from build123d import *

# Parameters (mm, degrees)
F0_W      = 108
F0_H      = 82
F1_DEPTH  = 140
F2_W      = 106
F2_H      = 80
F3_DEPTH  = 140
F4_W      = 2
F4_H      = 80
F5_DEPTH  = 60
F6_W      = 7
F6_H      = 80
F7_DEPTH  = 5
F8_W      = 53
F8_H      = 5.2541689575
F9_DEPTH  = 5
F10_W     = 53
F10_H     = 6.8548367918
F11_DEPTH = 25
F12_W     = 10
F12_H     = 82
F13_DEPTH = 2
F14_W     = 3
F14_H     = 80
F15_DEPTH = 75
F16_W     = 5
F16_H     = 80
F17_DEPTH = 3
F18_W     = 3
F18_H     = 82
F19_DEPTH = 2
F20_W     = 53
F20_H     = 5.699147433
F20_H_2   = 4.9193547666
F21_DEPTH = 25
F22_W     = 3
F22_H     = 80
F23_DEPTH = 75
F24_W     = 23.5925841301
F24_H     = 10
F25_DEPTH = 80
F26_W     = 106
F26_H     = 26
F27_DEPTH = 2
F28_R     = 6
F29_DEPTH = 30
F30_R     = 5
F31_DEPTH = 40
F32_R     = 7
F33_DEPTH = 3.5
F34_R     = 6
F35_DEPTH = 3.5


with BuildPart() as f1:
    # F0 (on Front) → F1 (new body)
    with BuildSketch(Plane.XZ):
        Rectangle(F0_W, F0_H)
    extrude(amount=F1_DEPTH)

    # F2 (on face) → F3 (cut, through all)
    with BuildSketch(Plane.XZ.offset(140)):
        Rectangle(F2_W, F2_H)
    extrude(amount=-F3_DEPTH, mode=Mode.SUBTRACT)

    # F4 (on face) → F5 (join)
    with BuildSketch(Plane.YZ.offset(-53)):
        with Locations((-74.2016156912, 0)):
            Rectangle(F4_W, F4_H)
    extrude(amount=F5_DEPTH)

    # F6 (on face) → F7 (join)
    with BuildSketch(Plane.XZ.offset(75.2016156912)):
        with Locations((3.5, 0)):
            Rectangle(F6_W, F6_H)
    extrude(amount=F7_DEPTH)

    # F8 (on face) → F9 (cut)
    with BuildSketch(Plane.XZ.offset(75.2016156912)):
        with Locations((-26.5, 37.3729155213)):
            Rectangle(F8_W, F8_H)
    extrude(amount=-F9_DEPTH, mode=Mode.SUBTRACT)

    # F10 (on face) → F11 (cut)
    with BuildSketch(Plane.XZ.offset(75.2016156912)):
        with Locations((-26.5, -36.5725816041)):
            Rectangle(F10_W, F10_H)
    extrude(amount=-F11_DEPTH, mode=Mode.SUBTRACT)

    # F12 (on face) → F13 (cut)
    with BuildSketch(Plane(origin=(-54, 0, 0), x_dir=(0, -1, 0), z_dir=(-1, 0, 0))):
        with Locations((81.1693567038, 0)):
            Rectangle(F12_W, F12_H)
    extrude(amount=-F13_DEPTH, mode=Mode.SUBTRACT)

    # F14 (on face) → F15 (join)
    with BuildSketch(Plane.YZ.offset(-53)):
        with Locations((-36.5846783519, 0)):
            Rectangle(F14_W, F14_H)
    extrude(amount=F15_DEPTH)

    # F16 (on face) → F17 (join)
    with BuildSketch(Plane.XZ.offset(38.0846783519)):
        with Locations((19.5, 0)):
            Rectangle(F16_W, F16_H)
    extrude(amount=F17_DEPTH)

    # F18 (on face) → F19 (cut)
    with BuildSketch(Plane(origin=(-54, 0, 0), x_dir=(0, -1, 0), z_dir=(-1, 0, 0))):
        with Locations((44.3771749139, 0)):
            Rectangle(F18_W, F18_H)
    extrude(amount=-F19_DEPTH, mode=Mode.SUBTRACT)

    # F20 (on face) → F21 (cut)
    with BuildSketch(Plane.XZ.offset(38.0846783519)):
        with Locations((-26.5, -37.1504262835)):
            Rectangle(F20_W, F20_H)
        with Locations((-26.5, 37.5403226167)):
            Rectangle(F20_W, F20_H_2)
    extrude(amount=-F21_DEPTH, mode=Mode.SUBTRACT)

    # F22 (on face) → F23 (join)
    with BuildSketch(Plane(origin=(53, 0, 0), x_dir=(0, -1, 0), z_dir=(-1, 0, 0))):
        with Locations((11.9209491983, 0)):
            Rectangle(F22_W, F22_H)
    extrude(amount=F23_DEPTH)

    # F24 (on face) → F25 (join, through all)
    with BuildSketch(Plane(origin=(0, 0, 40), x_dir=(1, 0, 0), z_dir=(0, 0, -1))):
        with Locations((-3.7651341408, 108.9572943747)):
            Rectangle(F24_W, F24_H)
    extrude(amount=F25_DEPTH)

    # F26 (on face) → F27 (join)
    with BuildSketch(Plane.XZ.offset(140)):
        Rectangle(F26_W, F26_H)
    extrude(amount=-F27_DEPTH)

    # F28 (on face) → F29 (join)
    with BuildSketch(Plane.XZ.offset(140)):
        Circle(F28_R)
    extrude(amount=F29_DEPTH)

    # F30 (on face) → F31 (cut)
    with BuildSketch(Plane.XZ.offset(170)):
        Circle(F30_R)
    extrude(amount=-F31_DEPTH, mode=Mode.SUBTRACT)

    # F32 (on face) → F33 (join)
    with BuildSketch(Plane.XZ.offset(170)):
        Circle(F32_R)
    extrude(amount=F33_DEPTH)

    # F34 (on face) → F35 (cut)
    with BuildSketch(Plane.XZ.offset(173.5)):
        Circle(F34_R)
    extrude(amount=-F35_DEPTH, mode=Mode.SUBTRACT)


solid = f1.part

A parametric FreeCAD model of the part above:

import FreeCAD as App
import Part
import Sketcher
Q = App.Units.Quantity


def add_polygon(sketch, points):
    """Adds a closed chain of lines whose ends are joined by coincident constraints."""
    first, n = sketch.GeometryCount, len(points)
    for a, b in zip(points, points[1:] + points[:1]):
        sketch.addGeometry(Part.LineSegment(App.Vector(*a, 0), App.Vector(*b, 0)), False)
    for i in range(n):
        sketch.addConstraint(Sketcher.Constraint("Coincident", first + i, 2, first + (i + 1) % n, 1))

doc = App.newDocument("Part")
body = doc.addObject("PartDesign::Body", "Body")
body.AllowCompound = True

# Sketch on XZ plane
sketch1 = body.newObject("Sketcher::SketchObject", "Sketch")
sketch1.AttachmentSupport = (doc.getObject("XZ_Plane"), [""])
sketch1.MapMode = "FlatFace"
add_polygon(sketch1, [(-54, 41), (-54, -41), (54, -41), (54, 41)])  # lines 0-3
sketch1.addConstraint([
    Sketcher.Constraint("Vertical", 0),
    Sketcher.Constraint("Horizontal", 1),
    Sketcher.Constraint("Vertical", 2),
    Sketcher.Constraint("Horizontal", 3),
    Sketcher.Constraint("Symmetric", 0, 2, 2, 2, -1, 1),
    Sketcher.Constraint("DistanceX", 1, 1, 1, 2, Q("108 mm")),
    Sketcher.Constraint("DistanceY", 0, 2, 0, 1, Q("82 mm")),
])
pad1 = body.newObject("PartDesign::Pad", "Pad")
pad1.Profile = sketch1
pad1.Length = 140

# Sketch on XZ plane
sketch2 = body.newObject("Sketcher::SketchObject", "Sketch001")
sketch2.AttachmentSupport = (doc.getObject("XZ_Plane"), [""])
sketch2.MapMode = "FlatFace"
sketch2.AttachmentOffset = App.Placement(App.Vector(0, 0, 140), App.Rotation())
add_polygon(sketch2, [(-53, 40), (-53, -40), (53, -40), (53, 40)])  # lines 0-3
sketch2.addConstraint([
    Sketcher.Constraint("Vertical", 0),
    Sketcher.Constraint("Horizontal", 1),
    Sketcher.Constraint("Vertical", 2),
    Sketcher.Constraint("Horizontal", 3),
    Sketcher.Constraint("Symmetric", 0, 2, 2, 2, -1, 1),
    Sketcher.Constraint("DistanceX", 1, 1, 1, 2, Q("106 mm")),
    Sketcher.Constraint("DistanceY", 0, 2, 0, 1, Q("80 mm")),
])
pocket1 = body.newObject("PartDesign::Pocket", "Pocket")
pocket1.Profile = sketch2
pocket1.Type = "ThroughAll"

# Sketch on YZ plane
sketch3 = body.newObject("Sketcher::SketchObject", "Sketch002")
sketch3.AttachmentSupport = (doc.getObject("YZ_Plane"), [""])
sketch3.MapMode = "FlatFace"
sketch3.AttachmentOffset = App.Placement(App.Vector(0, 0, -53), App.Rotation())
add_polygon(sketch3, [(-75.2, 40), (-75.2, -40), (-73.2, -40), (-73.2, 40)])  # lines 0-3
sketch3.addConstraint([
    Sketcher.Constraint("Vertical", 0),
    Sketcher.Constraint("Horizontal", 1),
    Sketcher.Constraint("Vertical", 2),
    Sketcher.Constraint("Horizontal", 3),
    Sketcher.Constraint("DistanceX", 1, 1, 1, 2, Q("2 mm")),
    Sketcher.Constraint("DistanceY", 0, 2, 0, 1, Q("80 mm")),
    Sketcher.Constraint("DistanceY", 0, 2, -1, 1, Q("40 mm")),
    Sketcher.Constraint("DistanceX", 0, 2, -1, 1, Q("75.201616 mm")),
])
pad2 = body.newObject("PartDesign::Pad", "Pad001")
pad2.Profile = sketch3
pad2.Length = 60

# Sketch on XZ plane
sketch4 = body.newObject("Sketcher::SketchObject", "Sketch003")
sketch4.AttachmentSupport = (doc.getObject("XZ_Plane"), [""])
sketch4.MapMode = "FlatFace"
sketch4.AttachmentOffset = App.Placement(App.Vector(0, 0, 75.201616), App.Rotation())
add_polygon(sketch4, [(0, 40), (0, -40), (7, -40), (7, 40)])  # lines 0-3
sketch4.addConstraint([
    Sketcher.Constraint("Vertical", 0),
    Sketcher.Constraint("Horizontal", 1),
    Sketcher.Constraint("Vertical", 2),
    Sketcher.Constraint("Horizontal", 3),
    Sketcher.Constraint("Symmetric", 0, 2, 3, 2, -1, 1),
    Sketcher.Constraint("DistanceX", 1, 1, 1, 2, Q("7 mm")),
    Sketcher.Constraint("DistanceY", 0, 2, 0, 1, Q("80 mm")),
])
pad3 = body.newObject("PartDesign::Pad", "Pad002")
pad3.Profile = sketch4
pad3.Length = 5

# Sketch on XZ plane
sketch5 = body.newObject("Sketcher::SketchObject", "Sketch004")
sketch5.AttachmentSupport = (doc.getObject("XZ_Plane"), [""])
sketch5.MapMode = "FlatFace"
sketch5.AttachmentOffset = App.Placement(App.Vector(0, 0, 75.201616), App.Rotation())
add_polygon(sketch5, [(-53, 40), (-53, 35), (0, 35), (0, 40)])  # lines 0-3
sketch5.addConstraint([
    Sketcher.Constraint("Vertical", 0),
    Sketcher.Constraint("Horizontal", 1),
    Sketcher.Constraint("Vertical", 2),
    Sketcher.Constraint("Horizontal", 3),
    Sketcher.Constraint("PointOnObject", 1, 2, -2),
    Sketcher.Constraint("DistanceX", 1, 1, 1, 2, Q("53 mm")),
    Sketcher.Constraint("DistanceY", -1, 1, 2, 2, Q("40 mm")),
    Sketcher.Constraint("DistanceY", 0, 2, 0, 1, Q("5.254169 mm")),
])
pocket2 = body.newObject("PartDesign::Pocket", "Pocket001")
pocket2.Profile = sketch5
pocket2.Length = 5

# Sketch on XZ plane
sketch6 = body.newObject("Sketcher::SketchObject", "Sketch005")
sketch6.AttachmentSupport = (doc.getObject("XZ_Plane"), [""])
sketch6.MapMode = "FlatFace"
sketch6.AttachmentOffset = App.Placement(App.Vector(0, 0, 75.201616), App.Rotation())
add_polygon(sketch6, [(-53, -33), (-53, -40), (0, -40), (0, -33)])  # lines 0-3
sketch6.addConstraint([
    Sketcher.Constraint("Vertical", 0),
    Sketcher.Constraint("Horizontal", 1),
    Sketcher.Constraint("Vertical", 2),
    Sketcher.Constraint("Horizontal", 3),
    Sketcher.Constraint("PointOnObject", 1, 2, -2),
    Sketcher.Constraint("DistanceX", 1, 1, 1, 2, Q("53 mm")),
    Sketcher.Constraint("DistanceY", 0, 2, -1, 1, Q("40 mm")),
    Sketcher.Constraint("DistanceY", 0, 2, 0, 1, Q("6.854837 mm")),
])
pocket3 = body.newObject("PartDesign::Pocket", "Pocket002")
pocket3.Profile = sketch6
pocket3.Length = 25

# Sketch on YZ plane
sketch7 = body.newObject("Sketcher::SketchObject", "Sketch006")
sketch7.AttachmentSupport = (doc.getObject("YZ_Plane"), [""])
sketch7.MapMode = "FlatFace"
sketch7.AttachmentOffset = App.Placement(App.Vector(0, 0, -54), App.Rotation())
add_polygon(sketch7, [(-76, 41), (-76, -41), (-86, -41), (-86, 41)])  # lines 0-3
sketch7.addConstraint([
    Sketcher.Constraint("Vertical", 0),
    Sketcher.Constraint("Horizontal", 1),
    Sketcher.Constraint("Vertical", 2),
    Sketcher.Constraint("Horizontal", 3),
    Sketcher.Constraint("DistanceX", 1, 2, 1, 1, Q("10 mm")),
    Sketcher.Constraint("DistanceY", 0, 2, 0, 1, Q("82 mm")),
    Sketcher.Constraint("DistanceY", 0, 2, -1, 1, Q("41 mm")),
    Sketcher.Constraint("DistanceX", 0, 2, -1, 1, Q("76.169357 mm")),
])
pocket4 = body.newObject("PartDesign::Pocket", "Pocket003")
pocket4.Profile = sketch7
pocket4.Length = 2
pocket4.Reversed = True

# Sketch on YZ plane
sketch8 = body.newObject("Sketcher::SketchObject", "Sketch007")
sketch8.AttachmentSupport = (doc.getObject("YZ_Plane"), [""])
sketch8.MapMode = "FlatFace"
sketch8.AttachmentOffset = App.Placement(App.Vector(0, 0, -53), App.Rotation())
add_polygon(sketch8, [(-38.1, 40), (-38.1, -40), (-35.1, -40), (-35.1, 40)])  # lines 0-3
sketch8.addConstraint([
    Sketcher.Constraint("Vertical", 0),
    Sketcher.Constraint("Horizontal", 1),
    Sketcher.Constraint("Vertical", 2),
    Sketcher.Constraint("Horizontal", 3),
    Sketcher.Constraint("DistanceX", 1, 1, 1, 2, Q("3 mm")),
    Sketcher.Constraint("DistanceY", 0, 2, 0, 1, Q("80 mm")),
    Sketcher.Constraint("DistanceY", 0, 2, -1, 1, Q("40 mm")),
    Sketcher.Constraint("DistanceX", 0, 2, -1, 1, Q("38.084678 mm")),
])
pad4 = body.newObject("PartDesign::Pad", "Pad003")
pad4.Profile = sketch8
pad4.Length = 75

# Sketch on XZ plane
sketch9 = body.newObject("Sketcher::SketchObject", "Sketch008")
sketch9.AttachmentSupport = (doc.getObject("XZ_Plane"), [""])
sketch9.MapMode = "FlatFace"
sketch9.AttachmentOffset = App.Placement(App.Vector(0, 0, 38.084678), App.Rotation())
add_polygon(sketch9, [(17, 40), (17, -40), (22, -40), (22, 40)])  # lines 0-3
sketch9.addConstraint([
    Sketcher.Constraint("Vertical", 0),
    Sketcher.Constraint("Horizontal", 1),
    Sketcher.Constraint("Vertical", 2),
    Sketcher.Constraint("Horizontal", 3),
    Sketcher.Constraint("DistanceX", 1, 1, 1, 2, Q("5 mm")),
    Sketcher.Constraint("DistanceY", 0, 2, 0, 1, Q("80 mm")),
    Sketcher.Constraint("DistanceX", -1, 1, 0, 2, Q("17 mm")),
    Sketcher.Constraint("DistanceY", 0, 2, -1, 1, Q("40 mm")),
])
pad5 = body.newObject("PartDesign::Pad", "Pad004")
pad5.Profile = sketch9
pad5.Length = 3

# Sketch on YZ plane
sketch10 = body.newObject("Sketcher::SketchObject", "Sketch009")
sketch10.AttachmentSupport = (doc.getObject("YZ_Plane"), [""])
sketch10.MapMode = "FlatFace"
sketch10.AttachmentOffset = App.Placement(App.Vector(0, 0, -54), App.Rotation())
add_polygon(sketch10, [(-42.9, 41), (-42.9, -41), (-45.9, -41), (-45.9, 41)])  # lines 0-3
sketch10.addConstraint([
    Sketcher.Constraint("Vertical", 0),
    Sketcher.Constraint("Horizontal", 1),
    Sketcher.Constraint("Vertical", 2),
    Sketcher.Constraint("Horizontal", 3),
    Sketcher.Constraint("DistanceX", 1, 2, 1, 1, Q("3 mm")),
    Sketcher.Constraint("DistanceY", 0, 2, 0, 1, Q("82 mm")),
    Sketcher.Constraint("DistanceY", 0, 2, -1, 1, Q("41 mm")),
    Sketcher.Constraint("DistanceX", 0, 2, -1, 1, Q("42.877175 mm")),
])
pocket5 = body.newObject("PartDesign::Pocket", "Pocket004")
pocket5.Profile = sketch10
pocket5.Length = 2
pocket5.Reversed = True

# Sketch on XZ plane
sketch11 = body.newObject("Sketcher::SketchObject", "Sketch010")
sketch11.AttachmentSupport = (doc.getObject("XZ_Plane"), [""])
sketch11.MapMode = "FlatFace"
sketch11.AttachmentOffset = App.Placement(App.Vector(0, 0, 38.084678), App.Rotation())
add_polygon(sketch11, [(-53, -34.3), (-53, -40), (0, -40), (0, -34.3)])  # lines 0-3
add_polygon(sketch11, [(-53, 40), (-53, 35.1), (0, 35.1), (0, 40)])  # lines 4-7
sketch11.addConstraint([
    Sketcher.Constraint("Vertical", 0),
    Sketcher.Constraint("Horizontal", 1),
    Sketcher.Constraint("Vertical", 2),
    Sketcher.Constraint("Horizontal", 3),
    Sketcher.Constraint("Vertical", 4),
    Sketcher.Constraint("Horizontal", 5),
    Sketcher.Constraint("Vertical", 6),
    Sketcher.Constraint("Horizontal", 7),
    Sketcher.Constraint("Symmetric", 1, 2, 6, 2, -1, 1),
    Sketcher.Constraint("PointOnObject", 1, 2, -2),
    Sketcher.Constraint("Vertical", 3, 2, 4, 2),
    Sketcher.Constraint("DistanceX", 1, 1, 1, 2, Q("53 mm")),
    Sketcher.Constraint("DistanceY", 0, 2, -1, 1, Q("40 mm")),
    Sketcher.Constraint("DistanceY", 0, 2, 0, 1, Q("5.699147 mm")),
    Sketcher.Constraint("DistanceY", 4, 2, 4, 1, Q("4.919355 mm")),
])
pocket6 = body.newObject("PartDesign::Pocket", "Pocket005")
pocket6.Profile = sketch11
pocket6.Length = 25

# Sketch on YZ plane
sketch12 = body.newObject("Sketcher::SketchObject", "Sketch011")
sketch12.AttachmentSupport = (doc.getObject("YZ_Plane"), [""])
sketch12.MapMode = "FlatFace"
sketch12.AttachmentOffset = App.Placement(App.Vector(0, 0, 53), App.Rotation())
add_polygon(sketch12, [(-10.4, 40), (-10.4, -40), (-13.4, -40), (-13.4, 40)])  # lines 0-3
sketch12.addConstraint([
    Sketcher.Constraint("Vertical", 0),
    Sketcher.Constraint("Horizontal", 1),
    Sketcher.Constraint("Vertical", 2),
    Sketcher.Constraint("Horizontal", 3),
    Sketcher.Constraint("DistanceX", 1, 2, 1, 1, Q("3 mm")),
    Sketcher.Constraint("DistanceY", 0, 2, 0, 1, Q("80 mm")),
    Sketcher.Constraint("DistanceY", 0, 2, -1, 1, Q("40 mm")),
    Sketcher.Constraint("DistanceX", 0, 2, -1, 1, Q("10.420949 mm")),
])
pad6 = body.newObject("PartDesign::Pad", "Pad005")
pad6.Profile = sketch12
pad6.Length = 75
pad6.Reversed = True

# Sketch on XY plane
sketch13 = body.newObject("Sketcher::SketchObject", "Sketch012")
sketch13.AttachmentSupport = (doc.getObject("XY_Plane"), [""])
sketch13.MapMode = "FlatFace"
sketch13.AttachmentOffset = App.Placement(App.Vector(0, 0, 40), App.Rotation())
add_polygon(sketch13, [(-16, -114), (-16, -104), (8, -104), (8, -114)])  # lines 0-3
sketch13.addConstraint([
    Sketcher.Constraint("Vertical", 0),
    Sketcher.Constraint("Horizontal", 1),
    Sketcher.Constraint("Vertical", 2),
    Sketcher.Constraint("Horizontal", 3),
    Sketcher.Constraint("DistanceY", 0, 1, 0, 2, Q("10 mm")),
    Sketcher.Constraint("DistanceX", 1, 1, 1, 2, Q("23.592584 mm")),
    Sketcher.Constraint("DistanceX", 0, 2, -1, 1, Q("15.561426 mm")),
    Sketcher.Constraint("DistanceY", 0, 2, -1, 1, Q("103.957294 mm")),
])
pad7 = body.newObject("PartDesign::Pad", "Pad006")
pad7.Profile = sketch13
pad7.Type = "UpToLast"
pad7.Reversed = True

# Sketch on XZ plane
sketch14 = body.newObject("Sketcher::SketchObject", "Sketch013")
sketch14.AttachmentSupport = (doc.getObject("XZ_Plane"), [""])
sketch14.MapMode = "FlatFace"
sketch14.AttachmentOffset = App.Placement(App.Vector(0, 0, 140), App.Rotation())
add_polygon(sketch14, [(-53, 13), (-53, -13), (53, -13), (53, 13)])  # lines 0-3
sketch14.addConstraint([
    Sketcher.Constraint("Vertical", 0),
    Sketcher.Constraint("Horizontal", 1),
    Sketcher.Constraint("Vertical", 2),
    Sketcher.Constraint("Horizontal", 3),
    Sketcher.Constraint("Symmetric", 0, 2, 2, 2, -1, 1),
    Sketcher.Constraint("DistanceX", 1, 1, 1, 2, Q("106 mm")),
    Sketcher.Constraint("DistanceY", 0, 2, 0, 1, Q("26 mm")),
])
pad8 = body.newObject("PartDesign::Pad", "Pad007")
pad8.Profile = sketch14
pad8.Length = 2
pad8.Reversed = True

# Sketch on XZ plane
sketch15 = body.newObject("Sketcher::SketchObject", "Sketch014")
sketch15.AttachmentSupport = (doc.getObject("XZ_Plane"), [""])
sketch15.MapMode = "FlatFace"
sketch15.AttachmentOffset = App.Placement(App.Vector(0, 0, 140), App.Rotation())
sketch15.addGeometry(Part.Circle(App.Vector(0, 0, 0), App.Vector(0, 0, 1), 6), False)
sketch15.addConstraint([
    Sketcher.Constraint("Coincident", 0, 3, -1, 1),
    Sketcher.Constraint("Diameter", 0, Q("12 mm")),
])
pad9 = body.newObject("PartDesign::Pad", "Pad008")
pad9.Profile = sketch15
pad9.Length = 30

# Sketch on XZ plane
sketch16 = body.newObject("Sketcher::SketchObject", "Sketch015")
sketch16.AttachmentSupport = (doc.getObject("XZ_Plane"), [""])
sketch16.MapMode = "FlatFace"
sketch16.AttachmentOffset = App.Placement(App.Vector(0, 0, 170), App.Rotation())
sketch16.addGeometry(Part.Circle(App.Vector(0, 0, 0), App.Vector(0, 0, 1), 5), False)
sketch16.addConstraint([
    Sketcher.Constraint("Coincident", 0, 3, -1, 1),
    Sketcher.Constraint("Diameter", 0, Q("10 mm")),
])
pocket7 = body.newObject("PartDesign::Pocket", "Pocket006")
pocket7.Profile = sketch16
pocket7.Length = 40

# Sketch on XZ plane
sketch17 = body.newObject("Sketcher::SketchObject", "Sketch016")
sketch17.AttachmentSupport = (doc.getObject("XZ_Plane"), [""])
sketch17.MapMode = "FlatFace"
sketch17.AttachmentOffset = App.Placement(App.Vector(0, 0, 170), App.Rotation())
sketch17.addGeometry(Part.Circle(App.Vector(0, 0, 0), App.Vector(0, 0, 1), 7), False)
sketch17.addConstraint([
    Sketcher.Constraint("Coincident", 0, 3, -1, 1),
    Sketcher.Constraint("Diameter", 0, Q("14 mm")),
])
pad10 = body.newObject("PartDesign::Pad", "Pad009")
pad10.Profile = sketch17
pad10.Length = 3.5

# Sketch on XZ plane
sketch18 = body.newObject("Sketcher::SketchObject", "Sketch017")
sketch18.AttachmentSupport = (doc.getObject("XZ_Plane"), [""])
sketch18.MapMode = "FlatFace"
sketch18.AttachmentOffset = App.Placement(App.Vector(0, 0, 173.5), App.Rotation())
sketch18.addGeometry(Part.Circle(App.Vector(0, 0, 0), App.Vector(0, 0, 1), 6), False)
sketch18.addConstraint([
    Sketcher.Constraint("Coincident", 0, 3, -1, 1),
    Sketcher.Constraint("Diameter", 0, Q("12 mm")),
])
pocket8 = body.newObject("PartDesign::Pocket", "Pocket007")
pocket8.Profile = sketch18
pocket8.Length = 3.5

doc.recompute()
